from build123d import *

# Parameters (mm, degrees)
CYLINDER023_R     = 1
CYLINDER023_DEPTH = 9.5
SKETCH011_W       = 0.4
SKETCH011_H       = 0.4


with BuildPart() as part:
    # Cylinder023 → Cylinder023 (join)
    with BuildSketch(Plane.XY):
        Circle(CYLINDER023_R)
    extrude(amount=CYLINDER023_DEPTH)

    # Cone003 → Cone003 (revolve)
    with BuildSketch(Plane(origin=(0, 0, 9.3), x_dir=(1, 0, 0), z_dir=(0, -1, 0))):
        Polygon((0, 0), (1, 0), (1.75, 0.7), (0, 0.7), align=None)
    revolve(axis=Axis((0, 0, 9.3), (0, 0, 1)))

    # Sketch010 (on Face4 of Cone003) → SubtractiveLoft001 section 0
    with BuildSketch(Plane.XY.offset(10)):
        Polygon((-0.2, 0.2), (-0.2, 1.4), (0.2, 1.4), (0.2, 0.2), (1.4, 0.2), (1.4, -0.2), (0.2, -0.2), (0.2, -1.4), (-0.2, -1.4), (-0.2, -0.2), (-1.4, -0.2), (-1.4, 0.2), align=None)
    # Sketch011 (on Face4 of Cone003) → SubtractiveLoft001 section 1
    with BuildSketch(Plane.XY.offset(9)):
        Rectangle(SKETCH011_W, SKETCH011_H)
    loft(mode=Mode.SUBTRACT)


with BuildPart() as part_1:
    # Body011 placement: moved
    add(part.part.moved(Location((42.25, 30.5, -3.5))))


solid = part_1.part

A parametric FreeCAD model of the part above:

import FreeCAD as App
import Part
import Sketcher
Q = App.Units.Quantity

doc = App.newDocument("Part")
body = doc.addObject("PartDesign::Body", "Body")

# Sketch on XY plane
sketch1 = doc.addObject("Sketcher::SketchObject", "Sketch")
body.addObject(sketch1)
sketch1.AttachmentSupport = (doc.XY_Plane, [""])
sketch1.MapMode = "FlatFace"
sketch1.addGeometry(Part.Circle(App.Vector(0, 0, 0), App.Vector(0, 0, 1), 1), False)
sketch1.addConstraint(Sketcher.Constraint("Coincident", 0, 3, -1, 1))
sketch1.addConstraint(Sketcher.Constraint("Diameter", 0, Q("2 mm")))
pad1 = doc.addObject("PartDesign::Pad", "Pad")
body.addObject(pad1)
pad1.Profile = sketch1
pad1.Length = 9.5

# Sketch on XZ plane
sketch2 = doc.addObject("Sketcher::SketchObject", "Sketch001")
body.addObject(sketch2)
sketch2.AttachmentSupport = (doc.XZ_Plane, [""])
sketch2.MapMode = "FlatFace"
sketch2.addGeometry(Part.LineSegment(App.Vector(0, 9.3, 0), App.Vector(1, 9.3, 0)), False)
sketch2.addGeometry(Part.LineSegment(App.Vector(1, 9.3, 0), App.Vector(1.8, 10, 0)), False)
sketch2.addGeometry(Part.LineSegment(App.Vector(1.8, 10, 0), App.Vector(0, 10, 0)), False)
sketch2.addGeometry(Part.LineSegment(App.Vector(0, 10, 0), App.Vector(0, 9.3, 0)), False)
sketch2.addConstraint(Sketcher.Constraint("Coincident", 0, 2, 1, 1))
sketch2.addConstraint(Sketcher.Constraint("Coincident", 1, 2, 2, 1))
sketch2.addConstraint(Sketcher.Constraint("Coincident", 2, 2, 3, 1))
sketch2.addConstraint(Sketcher.Constraint("Coincident", 3, 2, 0, 1))
sketch2.addConstraint(Sketcher.Constraint("Horizontal", 0))
sketch2.addConstraint(Sketcher.Constraint("Horizontal", 2))
sketch2.addConstraint(Sketcher.Constraint("Vertical", 3))
sketch2.addConstraint(Sketcher.Constraint("PointOnObject", 2, 2, -2))
sketch2.addConstraint(Sketcher.Constraint("DistanceX", 0, 1, 0, 2, Q("1 mm")))
sketch2.addConstraint(Sketcher.Constraint("DistanceY", 3, 2, 3, 1, Q("0.7 mm")))
sketch2.addConstraint(Sketcher.Constraint("DistanceY", -1, 1, 1, 2, Q("10 mm")))
sketch2.addConstraint(Sketcher.Constraint("DistanceX", 2, 2, 2, 1, Q("1.75 mm")))
revolution = doc.addObject("PartDesign::Revolution", "Revolution")
body.addObject(revolution)
revolution.Profile = sketch2
revolution.ReferenceAxis = (sketch2, ["V_Axis"])
revolution.Angle = 360

# Sketch on XY plane
sketch3 = doc.addObject("Sketcher::SketchObject", "Sketch002")
body.addObject(sketch3)
sketch3.AttachmentSupport = (doc.XY_Plane, [""])
sketch3.MapMode = "FlatFace"
sketch3.AttachmentOffset = App.Placement(App.Vector(0, 0, 10), App.Rotation())
sketch3.addGeometry(Part.LineSegment(App.Vector(-0.2, 1.4, 0), App.Vector(-0.2, 0.2, 0)), False)
sketch3.addGeometry(Part.LineSegment(App.Vector(-0.2, 0.2, 0), App.Vector(-1.4, 0.2, 0)), False)
sketch3.addGeometry(Part.LineSegment(App.Vector(-1.4, 0.2, 0), App.Vector(-1.4, -0.2, 0)), False)
sketch3.addGeometry(Part.LineSegment(App.Vector(-1.4, -0.2, 0), App.Vector(-0.2, -0.2, 0)), False)
sketch3.addGeometry(Part.LineSegment(App.Vector(-0.2, -0.2, 0), App.Vector(-0.2, -1.4, 0)), False)
sketch3.addGeometry(Part.LineSegment(App.Vector(-0.2, -1.4, 0), App.Vector(0.2, -1.4, 0)), False)
sketch3.addGeometry(Part.LineSegment(App.Vector(0.2, -1.4, 0), App.Vector(0.2, -0.2, 0)), False)
sketch3.addGeometry(Part.LineSegment(App.Vector(0.2, -0.2, 0), App.Vector(1.4, -0.2, 0)), False)
sketch3.addGeometry(Part.LineSegment(App.Vector(1.4, -0.2, 0), App.Vector(1.4, 0.2, 0)), False)
sketch3.addGeometry(Part.LineSegment(App.Vector(1.4, 0.2, 0), App.Vector(0.2, 0.2, 0)), False)
sketch3.addGeometry(Part.LineSegment(App.Vector(0.2, 0.2, 0), App.Vector(0.2, 1.4, 0)), False)
sketch3.addGeometry(Part.LineSegment(App.Vector(0.2, 1.4, 0), App.Vector(-0.2, 1.4, 0)), False)
sketch3.addConstraint(Sketcher.Constraint("Coincident", 0, 2, 1, 1))
sketch3.addConstraint(Sketcher.Constraint("Coincident", 1, 2, 2, 1))
sketch3.addConstraint(Sketcher.Constraint("Coincident", 2, 2, 3, 1))
sketch3.addConstraint(Sketcher.Constraint("Coincident", 3, 2, 4, 1))
sketch3.addConstraint(Sketcher.Constraint("Coincident", 4, 2, 5, 1))
sketch3.addConstraint(Sketcher.Constraint("Coincident", 5, 2, 6, 1))
sketch3.addConstraint(Sketcher.Constraint("Coincident", 6, 2, 7, 1))
sketch3.addConstraint(Sketcher.Constraint("Coincident", 7, 2, 8, 1))
sketch3.addConstraint(Sketcher.Constraint("Coincident", 8, 2, 9, 1))
sketch3.addConstraint(Sketcher.Constraint("Coincident", 9, 2, 10, 1))
sketch3.addConstraint(Sketcher.Constraint("Coincident", 10, 2, 11, 1))
sketch3.addConstraint(Sketcher.Constraint("Coincident", 11, 2, 0, 1))
sketch3.addConstraint(Sketcher.Constraint("Vertical", 0))
sketch3.addConstraint(Sketcher.Constraint("Horizontal", 1))
sketch3.addConstraint(Sketcher.Constraint("Vertical", 2))
sketch3.addConstraint(Sketcher.Constraint("Horizontal", 3))
sketch3.addConstraint(Sketcher.Constraint("Vertical", 4))
sketch3.addConstraint(Sketcher.Constraint("Horizontal", 5))
sketch3.addConstraint(Sketcher.Constraint("Vertical", 6))
sketch3.addConstraint(Sketcher.Constraint("Horizontal", 7))
sketch3.addConstraint(Sketcher.Constraint("Vertical", 8))
sketch3.addConstraint(Sketcher.Constraint("Horizontal", 9))
sketch3.addConstraint(Sketcher.Constraint("Vertical", 10))
sketch3.addConstraint(Sketcher.Constraint("Horizontal", 11))
sketch3.addConstraint(Sketcher.Constraint("Symmetric", 0, 2, 6, 2, -1, 1))
sketch3.addConstraint(Sketcher.Constraint("Symmetric", 2, 2, 8, 2, -1, 1))
sketch3.addConstraint(Sketcher.Constraint("Symmetric", 4, 2, 10, 2, -1, 1))
sketch3.addConstraint(Sketcher.Constraint("Symmetric", 3, 2, 6, 2, -2))
sketch3.addConstraint(Sketcher.Constraint("Equal", 9, 0))
sketch3.addConstraint(Sketcher.Constraint("Equal", 11, 2))
sketch3.addConstraint(Sketcher.Constraint("DistanceX", 1, 2, 1, 1, Q("1.2 mm")))
sketch3.addConstraint(Sketcher.Constraint("DistanceX", 5, 1, 5, 2, Q("0.4 mm")))

# Sketch on XY plane
sketch4 = doc.addObject("Sketcher::SketchObject", "Sketch003")
body.addObject(sketch4)
sketch4.AttachmentSupport = (doc.XY_Plane, [""])
sketch4.MapMode = "FlatFace"
sketch4.AttachmentOffset = App.Placement(App.Vector(0, 0, 9), App.Rotation())
sketch4.addGeometry(Part.LineSegment(App.Vector(-0.2, 0.2, 0), App.Vector(-0.2, -0.2, 0)), False)
sketch4.addGeometry(Part.LineSegment(App.Vector(-0.2, -0.2, 0), App.Vector(0.2, -0.2, 0)), False)
sketch4.addGeometry(Part.LineSegment(App.Vector(0.2, -0.2, 0), App.Vector(0.2, 0.2, 0)), False)
sketch4.addGeometry(Part.LineSegment(App.Vector(0.2, 0.2, 0), App.Vector(-0.2, 0.2, 0)), False)
sketch4.addConstraint(Sketcher.Constraint("Coincident", 0, 2, 1, 1))
sketch4.addConstraint(Sketcher.Constraint("Coincident", 1, 2, 2, 1))
sketch4.addConstraint(Sketcher.Constraint("Coincident", 2, 2, 3, 1))
sketch4.addConstraint(Sketcher.Constraint("Coincident", 3, 2, 0, 1))
sketch4.addConstraint(Sketcher.Constraint("Vertical", 0))
sketch4.addConstraint(Sketcher.Constraint("Horizontal", 1))
sketch4.addConstraint(Sketcher.Constraint("Vertical", 2))
sketch4.addConstraint(Sketcher.Constraint("Horizontal", 3))
sketch4.addConstraint(Sketcher.Constraint("Symmetric", 0, 2, 2, 2, -1, 1))
sketch4.addConstraint(Sketcher.Constraint("Equal", 3, 0))
sketch4.addConstraint(Sketcher.Constraint("DistanceX", 1, 1, 1, 2, Q("0.4 mm")))

subtractiveloft = doc.addObject("PartDesign::SubtractiveLoft", "SubtractiveLoft")
body.addObject(subtractiveloft)
subtractiveloft.Profile = sketch3
subtractiveloft.Sections = [sketch4]
body2 = doc.addObject("PartDesign::Body", "Body001")
doc.recompute()

body.Placement = App.Placement(App.Vector(42.25, 30.5, -3.5), App.Rotation(App.Vector(0, 0, 1), 0))
boolean = doc.addObject("PartDesign::Boolean", "Boolean")
body2.addObject(boolean)
boolean.Type = "Fuse"
boolean.addObjects([body])

doc.recompute()
